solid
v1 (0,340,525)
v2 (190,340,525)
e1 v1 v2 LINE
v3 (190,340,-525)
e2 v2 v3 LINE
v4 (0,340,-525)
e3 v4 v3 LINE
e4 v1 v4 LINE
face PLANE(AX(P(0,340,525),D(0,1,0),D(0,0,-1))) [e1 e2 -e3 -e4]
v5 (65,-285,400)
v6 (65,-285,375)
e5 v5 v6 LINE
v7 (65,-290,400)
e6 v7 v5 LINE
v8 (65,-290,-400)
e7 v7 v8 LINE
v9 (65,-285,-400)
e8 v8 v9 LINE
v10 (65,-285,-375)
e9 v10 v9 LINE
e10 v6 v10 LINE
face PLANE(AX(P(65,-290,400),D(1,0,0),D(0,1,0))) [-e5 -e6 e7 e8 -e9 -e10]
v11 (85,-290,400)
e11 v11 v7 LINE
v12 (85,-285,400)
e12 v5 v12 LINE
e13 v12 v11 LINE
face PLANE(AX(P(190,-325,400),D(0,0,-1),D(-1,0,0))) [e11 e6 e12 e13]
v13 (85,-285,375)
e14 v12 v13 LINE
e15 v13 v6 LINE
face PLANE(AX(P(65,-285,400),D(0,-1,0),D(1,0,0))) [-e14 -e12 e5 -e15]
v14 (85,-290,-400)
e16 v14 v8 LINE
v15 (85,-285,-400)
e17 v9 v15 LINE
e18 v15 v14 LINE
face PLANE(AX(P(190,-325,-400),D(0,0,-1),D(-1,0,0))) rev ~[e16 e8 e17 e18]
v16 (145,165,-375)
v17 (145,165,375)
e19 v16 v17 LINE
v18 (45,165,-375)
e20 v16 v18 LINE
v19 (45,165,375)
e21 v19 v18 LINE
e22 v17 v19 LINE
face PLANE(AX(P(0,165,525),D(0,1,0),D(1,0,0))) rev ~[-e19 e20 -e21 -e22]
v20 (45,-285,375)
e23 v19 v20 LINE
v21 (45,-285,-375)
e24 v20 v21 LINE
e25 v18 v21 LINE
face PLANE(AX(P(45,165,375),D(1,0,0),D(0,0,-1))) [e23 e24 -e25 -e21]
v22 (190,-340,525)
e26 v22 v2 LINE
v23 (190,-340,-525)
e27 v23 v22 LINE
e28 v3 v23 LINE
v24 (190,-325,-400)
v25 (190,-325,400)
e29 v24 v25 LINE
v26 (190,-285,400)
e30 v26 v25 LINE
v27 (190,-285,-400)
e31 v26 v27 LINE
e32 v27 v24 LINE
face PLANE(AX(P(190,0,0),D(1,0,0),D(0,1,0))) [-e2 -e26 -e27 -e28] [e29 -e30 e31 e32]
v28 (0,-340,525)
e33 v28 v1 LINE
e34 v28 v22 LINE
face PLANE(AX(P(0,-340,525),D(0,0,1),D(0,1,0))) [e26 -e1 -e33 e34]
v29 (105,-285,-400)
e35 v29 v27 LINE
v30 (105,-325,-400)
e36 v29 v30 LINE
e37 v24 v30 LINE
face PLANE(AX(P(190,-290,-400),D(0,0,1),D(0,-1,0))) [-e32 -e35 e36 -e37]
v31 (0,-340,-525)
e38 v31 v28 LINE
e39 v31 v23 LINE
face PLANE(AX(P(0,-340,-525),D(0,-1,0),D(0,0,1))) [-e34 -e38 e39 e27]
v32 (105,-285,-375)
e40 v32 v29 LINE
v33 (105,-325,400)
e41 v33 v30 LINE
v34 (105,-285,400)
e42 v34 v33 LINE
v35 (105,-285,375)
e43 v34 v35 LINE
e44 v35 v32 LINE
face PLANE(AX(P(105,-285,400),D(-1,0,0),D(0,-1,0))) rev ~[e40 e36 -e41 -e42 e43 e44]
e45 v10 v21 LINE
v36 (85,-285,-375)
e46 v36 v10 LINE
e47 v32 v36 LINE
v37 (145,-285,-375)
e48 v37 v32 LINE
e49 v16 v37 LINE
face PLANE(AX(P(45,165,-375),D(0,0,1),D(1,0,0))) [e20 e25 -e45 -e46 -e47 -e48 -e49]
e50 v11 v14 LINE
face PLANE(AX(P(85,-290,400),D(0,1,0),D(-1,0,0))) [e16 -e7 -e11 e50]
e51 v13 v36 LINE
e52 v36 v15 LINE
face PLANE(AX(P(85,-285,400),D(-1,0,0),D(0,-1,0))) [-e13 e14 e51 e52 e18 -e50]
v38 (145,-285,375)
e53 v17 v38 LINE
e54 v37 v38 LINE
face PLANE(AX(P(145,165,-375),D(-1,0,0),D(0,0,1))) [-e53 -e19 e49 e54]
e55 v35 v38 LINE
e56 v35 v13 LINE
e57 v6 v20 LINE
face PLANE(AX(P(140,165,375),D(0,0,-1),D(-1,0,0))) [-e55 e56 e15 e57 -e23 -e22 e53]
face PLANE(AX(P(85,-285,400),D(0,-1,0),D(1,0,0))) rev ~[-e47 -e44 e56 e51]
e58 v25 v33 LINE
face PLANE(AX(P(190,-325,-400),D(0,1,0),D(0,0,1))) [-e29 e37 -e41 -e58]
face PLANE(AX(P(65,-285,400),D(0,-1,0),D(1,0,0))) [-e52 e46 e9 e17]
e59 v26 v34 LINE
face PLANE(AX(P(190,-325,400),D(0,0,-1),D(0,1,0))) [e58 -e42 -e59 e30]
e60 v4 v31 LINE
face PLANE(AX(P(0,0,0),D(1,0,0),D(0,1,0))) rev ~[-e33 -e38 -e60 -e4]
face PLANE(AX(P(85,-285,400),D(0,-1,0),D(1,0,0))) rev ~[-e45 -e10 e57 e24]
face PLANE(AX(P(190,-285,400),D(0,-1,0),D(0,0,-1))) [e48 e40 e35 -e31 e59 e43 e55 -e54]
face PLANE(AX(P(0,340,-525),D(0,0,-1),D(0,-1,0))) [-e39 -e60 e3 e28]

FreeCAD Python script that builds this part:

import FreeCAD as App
import Part
import Sketcher

V = App.Vector
Q = App.Units.Quantity

doc = App.newDocument("Part")
body = doc.addObject("PartDesign::Body", "Body")

sketch1 = doc.addObject("Sketcher::SketchObject", "Sketch")
body.addObject(sketch1)
sketch1.AttachmentSupport = (doc.YZ_Plane, [""])
sketch1.MapMode = "FlatFace"
sketch1.addGeometry(Part.LineSegment(V(-340, -525, 0), V(340, -525, 0)), False)
sketch1.addGeometry(Part.LineSegment(V(340, -525, 0), V(340, 525, 0)), False)
sketch1.addGeometry(Part.LineSegment(V(340, 525, 0), V(-340, 525, 0)), False)
sketch1.addGeometry(Part.LineSegment(V(-340, 525, 0), V(-340, -525, 0)), False)
sketch1.addConstraint(Sketcher.Constraint("Coincident", 0, 2, 1, 1))
sketch1.addConstraint(Sketcher.Constraint("Coincident", 1, 2, 2, 1))
sketch1.addConstraint(Sketcher.Constraint("Coincident", 2, 2, 3, 1))
sketch1.addConstraint(Sketcher.Constraint("Coincident", 3, 2, 0, 1))
sketch1.addConstraint(Sketcher.Constraint("Horizontal", 0))
sketch1.addConstraint(Sketcher.Constraint("Vertical", 1))
sketch1.addConstraint(Sketcher.Constraint("Horizontal", 2))
sketch1.addConstraint(Sketcher.Constraint("Vertical", 3))
sketch1.addConstraint(Sketcher.Constraint("Symmetric", 0, 2, 2, 2, -1, 1))
sketch1.addConstraint(Sketcher.Constraint("DistanceX", 0, 1, 0, 2, Q("680 mm")))
sketch1.addConstraint(Sketcher.Constraint("DistanceY", 1, 1, 1, 2, Q("1050 mm")))
pad1 = doc.addObject("PartDesign::Pad", "Pad")
body.addObject(pad1)
pad1.Profile = sketch1
pad1.Length = 190

sketch2 = doc.addObject("Sketcher::SketchObject", "Sketch001")
body.addObject(sketch2)
sketch2.AttachmentSupport = (doc.YZ_Plane, [""])
sketch2.MapMode = "FlatFace"
sketch2.AttachmentOffset = App.Placement(V(0, 0, 190), App.Rotation())
sketch2.addGeometry(Part.LineSegment(V(-325, -400, 0), V(-285, -400, 0)), False)
sketch2.addGeometry(Part.LineSegment(V(-285, -400, 0), V(-285, 400, 0)), False)
sketch2.addGeometry(Part.LineSegment(V(-285, 400, 0), V(-325, 400, 0)), False)
sketch2.addGeometry(Part.LineSegment(V(-325, 400, 0), V(-325, -400, 0)), False)
sketch2.addConstraint(Sketcher.Constraint("Coincident", 0, 2, 1, 1))
sketch2.addConstraint(Sketcher.Constraint("Coincident", 1, 2, 2, 1))
sketch2.addConstraint(Sketcher.Constraint("Coincident", 2, 2, 3, 1))
sketch2.addConstraint(Sketcher.Constraint("Coincident", 3, 2, 0, 1))
sketch2.addConstraint(Sketcher.Constraint("Horizontal", 0))
sketch2.addConstraint(Sketcher.Constraint("Vertical", 1))
sketch2.addConstraint(Sketcher.Constraint("Horizontal", 2))
sketch2.addConstraint(Sketcher.Constraint("Vertical", 3))
sketch2.addConstraint(Sketcher.Constraint("DistanceX", 0, 1, 0, 2, Q("40 mm")))
sketch2.addConstraint(Sketcher.Constraint("DistanceY", 1, 1, 1, 2, Q("800 mm")))
sketch2.addConstraint(Sketcher.Constraint("DistanceX", 0, 2, -1, 1, Q("285 mm")))
sketch2.addConstraint(Sketcher.Constraint("DistanceY", 0, 2, -1, 1, Q("400 mm")))
pocket1 = doc.addObject("PartDesign::Pocket", "Pocket")
body.addObject(pocket1)
pocket1.Profile = sketch2
pocket1.Length = 105

sketch3 = doc.addObject("Sketcher::SketchObject", "Sketch002")
body.addObject(sketch3)
sketch3.AttachmentSupport = (doc.XZ_Plane, [""])
sketch3.MapMode = "FlatFace"
sketch3.AttachmentOffset = App.Placement(V(0, 0, -165), App.Rotation())
sketch3.addGeometry(Part.LineSegment(V(45, 375, 0), V(145, 375, 0)), False)
sketch3.addGeometry(Part.LineSegment(V(145, 375, 0), V(145, -375, 0)), False)
sketch3.addGeometry(Part.LineSegment(V(145, -375, 0), V(45, -375, 0)), False)
sketch3.addGeometry(Part.LineSegment(V(45, -375, 0), V(45, 375, 0)), False)
sketch3.addConstraint(Sketcher.Constraint("Coincident", 0, 2, 1, 1))
sketch3.addConstraint(Sketcher.Constraint("Coincident", 1, 2, 2, 1))
sketch3.addConstraint(Sketcher.Constraint("Coincident", 2, 2, 3, 1))
sketch3.addConstraint(Sketcher.Constraint("Coincident", 3, 2, 0, 1))
sketch3.addConstraint(Sketcher.Constraint("Horizontal", 0))
sketch3.addConstraint(Sketcher.Constraint("Vertical", 1))
sketch3.addConstraint(Sketcher.Constraint("Horizontal", 2))
sketch3.addConstraint(Sketcher.Constraint("Vertical", 3))
sketch3.addConstraint(Sketcher.Constraint("DistanceX", 0, 1, 0, 2, Q("100 mm")))
sketch3.addConstraint(Sketcher.Constraint("DistanceY", 1, 2, 1, 1, Q("750 mm")))
sketch3.addConstraint(Sketcher.Constraint("DistanceX", -1, 1, 2, 2, Q("45 mm")))
sketch3.addConstraint(Sketcher.Constraint("DistanceY", -1, 1, 0, 2, Q("375 mm")))
pocket2 = doc.addObject("PartDesign::Pocket", "Pocket001")
body.addObject(pocket2)
pocket2.Profile = sketch3
pocket2.Length = 450
pocket2.Reversed = True

sketch4 = doc.addObject("Sketcher::SketchObject", "Sketch003")
body.addObject(sketch4)
sketch4.AttachmentSupport = (doc.XY_Plane, [""])
sketch4.MapMode = "FlatFace"
sketch4.AttachmentOffset = App.Placement(V(0, 0, 400), App.Rotation())
sketch4.addGeometry(Part.LineSegment(V(125, -285, 0), V(145, -285, 0)), False)
sketch4.addGeometry(Part.LineSegment(V(145, -285, 0), V(145, -305, 0)), False)
sketch4.addGeometry(Part.LineSegment(V(145, -305, 0), V(125, -305, 0)), False)
sketch4.addGeometry(Part.LineSegment(V(125, -305, 0), V(125, -285, 0)), False)
sketch4.addGeometry(Part.LineSegment(V(85, -325, 0), V(85, -285, 0)), False)
sketch4.addGeometry(Part.LineSegment(V(85, -285, 0), V(105, -285, 0)), False)
sketch4.addGeometry(Part.LineSegment(V(105, -285, 0), V(105, -325, 0)), False)
sketch4.addGeometry(Part.LineSegment(V(105, -325, 0), V(85, -325, 0)), False)
sketch4.addConstraint(Sketcher.Constraint("Coincident", 0, 2, 1, 1))
sketch4.addConstraint(Sketcher.Constraint("Coincident", 1, 2, 2, 1))
sketch4.addConstraint(Sketcher.Constraint("Coincident", 2, 2, 3, 1))
sketch4.addConstraint(Sketcher.Constraint("Coincident", 3, 2, 0, 1))
sketch4.addConstraint(Sketcher.Constraint("Coincident", 4, 2, 5, 1))
sketch4.addConstraint(Sketcher.Constraint("Coincident", 5, 2, 6, 1))
sketch4.addConstraint(Sketcher.Constraint("Coincident", 6, 2, 7, 1))
sketch4.addConstraint(Sketcher.Constraint("Coincident", 7, 2, 4, 1))
sketch4.addConstraint(Sketcher.Constraint("Horizontal", 0))
sketch4.addConstraint(Sketcher.Constraint("Vertical", 1))
sketch4.addConstraint(Sketcher.Constraint("Horizontal", 2))
sketch4.addConstraint(Sketcher.Constraint("Vertical", 3))
sketch4.addConstraint(Sketcher.Constraint("Vertical", 4))
sketch4.addConstraint(Sketcher.Constraint("Horizontal", 5))
sketch4.addConstraint(Sketcher.Constraint("Vertical", 6))
sketch4.addConstraint(Sketcher.Constraint("Horizontal", 7))
sketch4.addConstraint(Sketcher.Constraint("Horizontal", 3, 2, 4, 2))
sketch4.addConstraint(Sketcher.Constraint("Equal", 2, 5))
sketch4.addConstraint(Sketcher.Constraint("Equal", 7, 1))
sketch4.addConstraint(Sketcher.Constraint("DistanceX", 0, 1, 0, 2, Q("20 mm")))
sketch4.addConstraint(Sketcher.Constraint("DistanceY", 4, 1, 4, 2, Q("40 mm")))
sketch4.addConstraint(Sketcher.Constraint("DistanceX", 4, 2, 3, 2, Q("40 mm")))
sketch4.addConstraint(Sketcher.Constraint("DistanceX", -1, 1, 0, 2, Q("145 mm")))
sketch4.addConstraint(Sketcher.Constraint("DistanceY", 0, 2, -1, 1, Q("285 mm")))
pad2 = doc.addObject("PartDesign::Pad", "Pad001")
body.addObject(pad2)
pad2.Profile = sketch4
pad2.Length = 800
pad2.Reversed = True

sketch5 = doc.addObject("Sketcher::SketchObject", "Sketch004")
body.addObject(sketch5)
sketch5.AttachmentSupport = (doc.XY_Plane, [""])
sketch5.MapMode = "FlatFace"
sketch5.AttachmentOffset = App.Placement(V(0, 0, 400), App.Rotation())
sketch5.addGeometry(Part.LineSegment(V(65, -290, 0), V(65, -285, 0)), False)
sketch5.addGeometry(Part.LineSegment(V(65, -285, 0), V(85, -285, 0)), False)
sketch5.addGeometry(Part.LineSegment(V(85, -285, 0), V(85, -290, 0)), False)
sketch5.addGeometry(Part.LineSegment(V(85, -290, 0), V(65, -290, 0)), False)
sketch5.addConstraint(Sketcher.Constraint("Coincident", 0, 2, 1, 1))
sketch5.addConstraint(Sketcher.Constraint("Coincident", 1, 2, 2, 1))
sketch5.addConstraint(Sketcher.Constraint("Coincident", 2, 2, 3, 1))
sketch5.addConstraint(Sketcher.Constraint("Coincident", 3, 2, 0, 1))
sketch5.addConstraint(Sketcher.Constraint("Vertical", 0))
sketch5.addConstraint(Sketcher.Constraint("Horizontal", 1))
sketch5.addConstraint(Sketcher.Constraint("Vertical", 2))
sketch5.addConstraint(Sketcher.Constraint("Horizontal", 3))
sketch5.addConstraint(Sketcher.Constraint("DistanceX", 1, 1, 1, 2, Q("20 mm")))
sketch5.addConstraint(Sketcher.Constraint("DistanceY", 0, 1, 0, 2, Q("5 mm")))
sketch5.addConstraint(Sketcher.Constraint("DistanceX", -1, 1, 0, 2, Q("65 mm")))
sketch5.addConstraint(Sketcher.Constraint("DistanceY", 0, 2, -1, 1, Q("285 mm")))
pocket3 = doc.addObject("PartDesign::Pocket", "Pocket002")
body.addObject(pocket3)
pocket3.Profile = sketch5
pocket3.Length = 800

sketch6 = doc.addObject("Sketcher::SketchObject", "Sketch005")
body.addObject(sketch6)
sketch6.AttachmentSupport = (doc.XY_Plane, [""])
sketch6.MapMode = "FlatFace"
sketch6.AttachmentOffset = App.Placement(V(0, 0, 400), App.Rotation())
sketch6.addGeometry(Part.LineSegment(V(145, -305, 0), V(125, -305, 0)), False)
sketch6.addGeometry(Part.LineSegment(V(125, -305, 0), V(125, -285, 0)), False)
sketch6.addGeometry(Part.LineSegment(V(125, -285, 0), V(145, -285, 0)), False)
sketch6.addGeometry(Part.LineSegment(V(145, -285, 0), V(145, -305, 0)), False)
sketch6.addConstraint(Sketcher.Constraint("Coincident", 0, 2, 1, 1))
sketch6.addConstraint(Sketcher.Constraint("Coincident", 1, 2, 2, 1))
sketch6.addConstraint(Sketcher.Constraint("Coincident", 2, 2, 3, 1))
sketch6.addConstraint(Sketcher.Constraint("Coincident", 3, 2, 0, 1))
sketch6.addConstraint(Sketcher.Constraint("Horizontal", 0))
sketch6.addConstraint(Sketcher.Constraint("Vertical", 1))
sketch6.addConstraint(Sketcher.Constraint("Horizontal", 2))
sketch6.addConstraint(Sketcher.Constraint("Vertical", 3))
sketch6.addConstraint(Sketcher.Constraint("Equal", 2, 1))
sketch6.addConstraint(Sketcher.Constraint("DistanceX", 0, 2, 0, 1, Q("20 mm")))
sketch6.addConstraint(Sketcher.Constraint("DistanceX", -1, 1, 0, 2, Q("125 mm")))
sketch6.addConstraint(Sketcher.Constraint("DistanceY", 0, 2, -1, 1, Q("305 mm")))
pocket4 = doc.addObject("PartDesign::Pocket", "Pocket003")
body.addObject(pocket4)
pocket4.Profile = sketch6
pocket4.Length = 800

doc.recompute()
